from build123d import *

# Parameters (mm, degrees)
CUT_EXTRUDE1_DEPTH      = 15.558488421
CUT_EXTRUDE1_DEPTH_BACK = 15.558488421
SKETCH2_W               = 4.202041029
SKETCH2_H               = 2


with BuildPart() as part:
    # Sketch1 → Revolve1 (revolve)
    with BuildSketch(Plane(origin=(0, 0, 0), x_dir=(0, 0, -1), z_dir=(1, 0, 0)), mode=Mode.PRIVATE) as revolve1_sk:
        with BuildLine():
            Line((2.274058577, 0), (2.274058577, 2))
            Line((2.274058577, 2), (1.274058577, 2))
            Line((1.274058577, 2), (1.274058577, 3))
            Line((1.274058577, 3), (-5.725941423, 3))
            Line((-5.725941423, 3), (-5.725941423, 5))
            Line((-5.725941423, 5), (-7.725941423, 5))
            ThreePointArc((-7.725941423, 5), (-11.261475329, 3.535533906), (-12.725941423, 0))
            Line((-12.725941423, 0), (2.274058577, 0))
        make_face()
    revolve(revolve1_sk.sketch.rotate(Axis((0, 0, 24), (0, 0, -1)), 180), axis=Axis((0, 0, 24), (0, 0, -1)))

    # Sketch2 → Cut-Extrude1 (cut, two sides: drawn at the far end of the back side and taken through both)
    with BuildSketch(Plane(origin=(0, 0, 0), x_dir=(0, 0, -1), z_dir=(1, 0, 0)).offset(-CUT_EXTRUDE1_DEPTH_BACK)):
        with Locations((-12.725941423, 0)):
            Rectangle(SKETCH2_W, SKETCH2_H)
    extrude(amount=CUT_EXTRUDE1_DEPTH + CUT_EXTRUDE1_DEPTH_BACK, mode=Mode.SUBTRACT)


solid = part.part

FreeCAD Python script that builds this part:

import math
import FreeCAD as App
import Part
import Sketcher

V = App.Vector

doc = App.newDocument("Part")
body = doc.addObject("PartDesign::Body", "Body")

# Sketch on YZ plane
sketch1 = doc.addObject("Sketcher::SketchObject", "Sketch")
body.addObject(sketch1)
sketch1.AttachmentSupport = (doc.YZ_Plane, [""])
sketch1.MapMode = "FlatFace"
sketch1.addGeometry([
    Part.LineSegment(V(0, -2.274059, 0), V(2, -2.274059, 0)),  # 0
    Part.LineSegment(V(2, -2.274059, 0), V(2, -1.274059, 0)),  # 1
    Part.LineSegment(V(2, -1.274059, 0), V(3, -1.274059, 0)),  # 2
    Part.LineSegment(V(3, -1.274059, 0), V(3, 5.725941, 0)),  # 3
    Part.LineSegment(V(3, 5.725941, 0), V(5, 5.725941, 0)),  # 4
    Part.LineSegment(V(5, 5.725941, 0), V(5, 7.725941, 0)),  # 5
    Part.ArcOfCircle(Part.Circle(V(0, 7.725941, 0), V(0, 0, 1), 5), math.radians(0), math.radians(90)),  # 6
    Part.LineSegment(V(0, 12.725941, 0), V(0, -2.274059, 0)),  # 7
], False)
sketch1.addConstraint([
    Sketcher.Constraint("Coincident", 0, 2, 1, 1),
    Sketcher.Constraint("Coincident", 1, 2, 2, 1),
    Sketcher.Constraint("Coincident", 2, 2, 3, 1),
    Sketcher.Constraint("Coincident", 3, 2, 4, 1),
    Sketcher.Constraint("Coincident", 4, 2, 5, 1),
    Sketcher.Constraint("Tangent", 5, 2, 6, 1),
    Sketcher.Constraint("Coincident", 6, 2, 7, 1),
    Sketcher.Constraint("Coincident", 7, 2, 0, 1),
    Sketcher.Constraint("Horizontal", 0),
    Sketcher.Constraint("Vertical", 1),
    Sketcher.Constraint("Horizontal", 2),
    Sketcher.Constraint("Vertical", 3),
    Sketcher.Constraint("Horizontal", 4),
    Sketcher.Constraint("Vertical", 5),
    Sketcher.Constraint("Vertical", 7),
    Sketcher.Constraint("PointOnObject", 6, 3, -2),
    Sketcher.Constraint("PointOnObject", 6, 2, -2),
    Sketcher.Constraint("Equal", 0, 4),
    Sketcher.Constraint("Equal", 2, 1),
    Sketcher.Constraint("Equal", 4, 5),
    Sketcher.Constraint("Radius", 6, 5.0),
    Sketcher.Constraint("DistanceX", 0, 1, 0, 2, 2.0),
    Sketcher.Constraint("DistanceY", 3, 1, 3, 2, 7.0),
    Sketcher.Constraint("DistanceY", -1, 1, 6, 3, 7.725941),
])
revolution = doc.addObject("PartDesign::Revolution", "Revolution")
body.addObject(revolution)
revolution.Profile = sketch1
revolution.ReferenceAxis = (sketch1, ["V_Axis"])
revolution.Angle = 360

# Sketch on YZ plane
sketch2 = doc.addObject("Sketcher::SketchObject", "Sketch001")
body.addObject(sketch2)
sketch2.AttachmentSupport = (doc.YZ_Plane, [""])
sketch2.MapMode = "FlatFace"
sketch2.addGeometry([
    Part.LineSegment(V(1, 14.826962, 0), V(-1, 14.826962, 0)),
    Part.LineSegment(V(-1, 14.826962, 0), V(-1, 10.624921, 0)),
    Part.LineSegment(V(-1, 10.624921, 0), V(1, 10.624921, 0)),
    Part.LineSegment(V(1, 10.624921, 0), V(1, 14.826962, 0)),
], False)
sketch2.addConstraint([
    Sketcher.Constraint("Coincident", 0, 2, 1, 1),
    Sketcher.Constraint("Coincident", 1, 2, 2, 1),
    Sketcher.Constraint("Coincident", 2, 2, 3, 1),
    Sketcher.Constraint("Coincident", 3, 2, 0, 1),
    Sketcher.Constraint("Horizontal", 0),
    Sketcher.Constraint("Vertical", 1),
    Sketcher.Constraint("Horizontal", 2),
    Sketcher.Constraint("Vertical", 3),
    Sketcher.Constraint("DistanceX", 0, 2, 0, 1, 2.0),
    Sketcher.Constraint("DistanceX", 0, 2, -1, 1, 1.0),
    Sketcher.Constraint("DistanceY", 1, 2, 1, 1, 4.202041),
    Sketcher.Constraint("DistanceY", -1, 1, 0, 2, 14.826962),
])
pocket1 = doc.addObject("PartDesign::Pocket", "Pocket")
body.addObject(pocket1)
pocket1.Profile = sketch2
pocket1.Type = "ThroughAll"
pocket1.Midplane = True

doc.recompute()
